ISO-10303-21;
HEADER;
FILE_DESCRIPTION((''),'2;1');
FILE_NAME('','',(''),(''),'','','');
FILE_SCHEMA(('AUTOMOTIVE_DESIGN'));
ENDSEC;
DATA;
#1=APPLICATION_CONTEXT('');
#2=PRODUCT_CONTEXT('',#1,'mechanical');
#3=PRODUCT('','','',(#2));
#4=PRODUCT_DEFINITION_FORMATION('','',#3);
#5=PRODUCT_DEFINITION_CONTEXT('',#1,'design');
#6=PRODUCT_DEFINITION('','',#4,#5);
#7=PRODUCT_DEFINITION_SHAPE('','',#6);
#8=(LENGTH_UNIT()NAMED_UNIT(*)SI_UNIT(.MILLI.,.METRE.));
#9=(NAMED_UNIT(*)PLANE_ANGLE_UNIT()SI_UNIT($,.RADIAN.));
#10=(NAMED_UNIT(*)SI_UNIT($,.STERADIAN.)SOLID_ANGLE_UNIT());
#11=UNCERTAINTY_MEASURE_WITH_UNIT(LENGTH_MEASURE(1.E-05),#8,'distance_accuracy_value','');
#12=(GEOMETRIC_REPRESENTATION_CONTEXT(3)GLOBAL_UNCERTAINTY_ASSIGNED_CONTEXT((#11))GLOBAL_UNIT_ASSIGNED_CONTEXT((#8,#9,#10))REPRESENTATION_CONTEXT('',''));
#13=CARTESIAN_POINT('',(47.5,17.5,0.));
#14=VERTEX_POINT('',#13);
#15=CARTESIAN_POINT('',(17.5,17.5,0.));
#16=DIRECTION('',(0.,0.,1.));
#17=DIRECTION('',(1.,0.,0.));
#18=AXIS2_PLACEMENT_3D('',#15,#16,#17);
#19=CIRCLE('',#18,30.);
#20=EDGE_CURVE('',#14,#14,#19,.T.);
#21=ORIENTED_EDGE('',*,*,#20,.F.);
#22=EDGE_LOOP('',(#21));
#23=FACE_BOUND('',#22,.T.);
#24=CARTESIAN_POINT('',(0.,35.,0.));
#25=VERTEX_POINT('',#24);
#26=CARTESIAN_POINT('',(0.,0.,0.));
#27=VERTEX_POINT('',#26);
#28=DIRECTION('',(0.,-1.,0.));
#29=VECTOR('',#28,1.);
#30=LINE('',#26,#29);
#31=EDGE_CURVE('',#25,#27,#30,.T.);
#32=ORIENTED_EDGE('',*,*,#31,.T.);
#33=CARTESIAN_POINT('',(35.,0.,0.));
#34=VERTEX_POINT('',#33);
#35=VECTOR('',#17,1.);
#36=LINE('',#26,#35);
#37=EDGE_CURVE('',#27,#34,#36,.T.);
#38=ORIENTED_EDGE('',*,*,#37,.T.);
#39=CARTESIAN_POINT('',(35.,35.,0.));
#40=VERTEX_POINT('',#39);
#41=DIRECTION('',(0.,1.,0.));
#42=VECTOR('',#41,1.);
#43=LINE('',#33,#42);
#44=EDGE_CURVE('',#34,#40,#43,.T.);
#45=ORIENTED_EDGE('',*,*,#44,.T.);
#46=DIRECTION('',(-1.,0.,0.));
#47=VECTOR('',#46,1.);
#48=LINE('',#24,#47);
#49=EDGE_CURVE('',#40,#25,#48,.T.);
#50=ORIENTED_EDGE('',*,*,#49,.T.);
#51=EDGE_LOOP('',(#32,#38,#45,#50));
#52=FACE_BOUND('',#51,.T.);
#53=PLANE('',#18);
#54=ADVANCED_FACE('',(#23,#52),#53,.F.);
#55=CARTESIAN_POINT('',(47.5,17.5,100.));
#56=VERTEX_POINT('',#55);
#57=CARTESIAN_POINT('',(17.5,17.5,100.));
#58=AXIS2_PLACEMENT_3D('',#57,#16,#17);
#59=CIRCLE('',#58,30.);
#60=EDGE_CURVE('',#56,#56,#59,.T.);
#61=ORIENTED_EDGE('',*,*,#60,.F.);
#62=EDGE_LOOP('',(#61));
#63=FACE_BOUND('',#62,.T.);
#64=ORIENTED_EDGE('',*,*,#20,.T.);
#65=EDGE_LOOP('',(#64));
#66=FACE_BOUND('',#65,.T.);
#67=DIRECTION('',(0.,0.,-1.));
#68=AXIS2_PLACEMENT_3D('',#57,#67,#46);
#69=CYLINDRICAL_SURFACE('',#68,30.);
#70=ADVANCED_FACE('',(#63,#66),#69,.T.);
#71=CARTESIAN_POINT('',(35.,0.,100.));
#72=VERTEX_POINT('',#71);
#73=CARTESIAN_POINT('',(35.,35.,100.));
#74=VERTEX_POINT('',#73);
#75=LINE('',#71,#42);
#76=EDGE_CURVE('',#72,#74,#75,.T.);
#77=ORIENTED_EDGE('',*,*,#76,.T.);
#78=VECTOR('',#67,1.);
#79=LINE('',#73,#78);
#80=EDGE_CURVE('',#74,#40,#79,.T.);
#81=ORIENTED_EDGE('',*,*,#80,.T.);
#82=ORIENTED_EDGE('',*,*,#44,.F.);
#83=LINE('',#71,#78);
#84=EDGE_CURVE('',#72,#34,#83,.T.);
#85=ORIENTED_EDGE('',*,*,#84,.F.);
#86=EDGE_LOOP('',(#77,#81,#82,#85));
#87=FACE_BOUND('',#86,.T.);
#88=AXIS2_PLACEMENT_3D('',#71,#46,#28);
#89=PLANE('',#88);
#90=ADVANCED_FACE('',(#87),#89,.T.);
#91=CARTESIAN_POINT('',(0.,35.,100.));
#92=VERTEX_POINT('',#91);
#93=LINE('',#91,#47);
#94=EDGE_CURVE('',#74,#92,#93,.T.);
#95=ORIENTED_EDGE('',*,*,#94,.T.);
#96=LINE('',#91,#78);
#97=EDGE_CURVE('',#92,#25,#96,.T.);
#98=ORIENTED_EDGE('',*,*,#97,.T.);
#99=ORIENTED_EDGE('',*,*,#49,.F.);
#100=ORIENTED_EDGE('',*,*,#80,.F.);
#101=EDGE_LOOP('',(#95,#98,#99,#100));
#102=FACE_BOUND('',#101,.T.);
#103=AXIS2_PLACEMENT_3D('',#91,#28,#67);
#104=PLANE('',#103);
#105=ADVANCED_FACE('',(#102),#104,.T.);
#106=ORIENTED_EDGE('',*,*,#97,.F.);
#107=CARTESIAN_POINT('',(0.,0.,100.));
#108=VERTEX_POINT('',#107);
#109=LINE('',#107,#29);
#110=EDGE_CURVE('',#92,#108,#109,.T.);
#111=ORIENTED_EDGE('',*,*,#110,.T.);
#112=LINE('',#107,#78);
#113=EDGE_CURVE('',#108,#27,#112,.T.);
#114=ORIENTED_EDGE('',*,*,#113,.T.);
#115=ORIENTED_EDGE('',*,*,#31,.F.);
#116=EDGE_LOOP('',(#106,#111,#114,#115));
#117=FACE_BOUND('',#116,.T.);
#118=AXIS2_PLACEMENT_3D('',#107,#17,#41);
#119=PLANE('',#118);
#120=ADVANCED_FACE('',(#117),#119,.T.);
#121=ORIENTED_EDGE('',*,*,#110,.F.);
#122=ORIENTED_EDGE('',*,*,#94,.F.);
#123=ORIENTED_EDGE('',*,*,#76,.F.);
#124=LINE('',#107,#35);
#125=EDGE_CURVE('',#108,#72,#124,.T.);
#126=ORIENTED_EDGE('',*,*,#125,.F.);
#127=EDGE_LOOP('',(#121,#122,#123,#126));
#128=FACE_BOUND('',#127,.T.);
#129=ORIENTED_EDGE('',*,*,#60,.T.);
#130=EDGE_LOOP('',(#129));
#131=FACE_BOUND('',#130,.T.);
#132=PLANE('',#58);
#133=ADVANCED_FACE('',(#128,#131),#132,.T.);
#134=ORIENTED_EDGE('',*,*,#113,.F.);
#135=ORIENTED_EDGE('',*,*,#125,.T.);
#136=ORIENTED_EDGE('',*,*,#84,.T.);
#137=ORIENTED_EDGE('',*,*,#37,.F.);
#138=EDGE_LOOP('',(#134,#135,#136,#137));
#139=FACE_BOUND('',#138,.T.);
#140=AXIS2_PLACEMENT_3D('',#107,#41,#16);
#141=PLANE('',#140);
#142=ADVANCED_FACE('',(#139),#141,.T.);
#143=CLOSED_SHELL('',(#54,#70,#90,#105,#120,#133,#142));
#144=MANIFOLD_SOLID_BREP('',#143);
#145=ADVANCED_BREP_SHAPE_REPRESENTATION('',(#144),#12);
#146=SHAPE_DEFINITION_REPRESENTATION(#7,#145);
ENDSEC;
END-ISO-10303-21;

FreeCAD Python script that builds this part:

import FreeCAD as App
import Part
import Sketcher


def add_polygon(sketch, points):
    """Adds a closed chain of lines whose ends are joined by coincident constraints."""
    first, n = sketch.GeometryCount, len(points)
    for a, b in zip(points, points[1:] + points[:1]):
        sketch.addGeometry(Part.LineSegment(App.Vector(*a, 0), App.Vector(*b, 0)), False)
    for i in range(n):
        sketch.addConstraint(Sketcher.Constraint("Coincident", first + i, 2, first + (i + 1) % n, 1))

doc = App.newDocument("Part")
body = doc.addObject("PartDesign::Body", "Body")

# Sketch on XY plane
sketch1 = doc.addObject("Sketcher::SketchObject", "Sketch")
body.addObject(sketch1)
sketch1.AttachmentSupport = (doc.XY_Plane, [""])
sketch1.MapMode = "FlatFace"
sketch1.addGeometry(Part.Circle(App.Vector(18, 18, 0), App.Vector(0, 0, 1), 30), False)  # 0
add_polygon(sketch1, [(35, 0), (0, 0), (0, 35), (35, 35)])  # lines 1-4
sketch1.addConstraint([
    Sketcher.Constraint("Horizontal", 1),
    Sketcher.Constraint("Vertical", 2),
    Sketcher.Constraint("Horizontal", 3),
    Sketcher.Constraint("Vertical", 4),
    Sketcher.Constraint("Coincident", 1, 2, -1, 1),
    Sketcher.Constraint("Equal", 3, 2),
    Sketcher.Constraint("Diameter", 0, 60.0),
    Sketcher.Constraint("DistanceX", 1, 2, 1, 1, 35.0),
    Sketcher.Constraint("DistanceX", -1, 1, 0, 3, 17.5),
    Sketcher.Constraint("DistanceY", -1, 1, 0, 3, 17.5),
])
pad1 = doc.addObject("PartDesign::Pad", "Pad")
body.addObject(pad1)
pad1.Profile = sketch1
pad1.Length = 100

doc.recompute()
